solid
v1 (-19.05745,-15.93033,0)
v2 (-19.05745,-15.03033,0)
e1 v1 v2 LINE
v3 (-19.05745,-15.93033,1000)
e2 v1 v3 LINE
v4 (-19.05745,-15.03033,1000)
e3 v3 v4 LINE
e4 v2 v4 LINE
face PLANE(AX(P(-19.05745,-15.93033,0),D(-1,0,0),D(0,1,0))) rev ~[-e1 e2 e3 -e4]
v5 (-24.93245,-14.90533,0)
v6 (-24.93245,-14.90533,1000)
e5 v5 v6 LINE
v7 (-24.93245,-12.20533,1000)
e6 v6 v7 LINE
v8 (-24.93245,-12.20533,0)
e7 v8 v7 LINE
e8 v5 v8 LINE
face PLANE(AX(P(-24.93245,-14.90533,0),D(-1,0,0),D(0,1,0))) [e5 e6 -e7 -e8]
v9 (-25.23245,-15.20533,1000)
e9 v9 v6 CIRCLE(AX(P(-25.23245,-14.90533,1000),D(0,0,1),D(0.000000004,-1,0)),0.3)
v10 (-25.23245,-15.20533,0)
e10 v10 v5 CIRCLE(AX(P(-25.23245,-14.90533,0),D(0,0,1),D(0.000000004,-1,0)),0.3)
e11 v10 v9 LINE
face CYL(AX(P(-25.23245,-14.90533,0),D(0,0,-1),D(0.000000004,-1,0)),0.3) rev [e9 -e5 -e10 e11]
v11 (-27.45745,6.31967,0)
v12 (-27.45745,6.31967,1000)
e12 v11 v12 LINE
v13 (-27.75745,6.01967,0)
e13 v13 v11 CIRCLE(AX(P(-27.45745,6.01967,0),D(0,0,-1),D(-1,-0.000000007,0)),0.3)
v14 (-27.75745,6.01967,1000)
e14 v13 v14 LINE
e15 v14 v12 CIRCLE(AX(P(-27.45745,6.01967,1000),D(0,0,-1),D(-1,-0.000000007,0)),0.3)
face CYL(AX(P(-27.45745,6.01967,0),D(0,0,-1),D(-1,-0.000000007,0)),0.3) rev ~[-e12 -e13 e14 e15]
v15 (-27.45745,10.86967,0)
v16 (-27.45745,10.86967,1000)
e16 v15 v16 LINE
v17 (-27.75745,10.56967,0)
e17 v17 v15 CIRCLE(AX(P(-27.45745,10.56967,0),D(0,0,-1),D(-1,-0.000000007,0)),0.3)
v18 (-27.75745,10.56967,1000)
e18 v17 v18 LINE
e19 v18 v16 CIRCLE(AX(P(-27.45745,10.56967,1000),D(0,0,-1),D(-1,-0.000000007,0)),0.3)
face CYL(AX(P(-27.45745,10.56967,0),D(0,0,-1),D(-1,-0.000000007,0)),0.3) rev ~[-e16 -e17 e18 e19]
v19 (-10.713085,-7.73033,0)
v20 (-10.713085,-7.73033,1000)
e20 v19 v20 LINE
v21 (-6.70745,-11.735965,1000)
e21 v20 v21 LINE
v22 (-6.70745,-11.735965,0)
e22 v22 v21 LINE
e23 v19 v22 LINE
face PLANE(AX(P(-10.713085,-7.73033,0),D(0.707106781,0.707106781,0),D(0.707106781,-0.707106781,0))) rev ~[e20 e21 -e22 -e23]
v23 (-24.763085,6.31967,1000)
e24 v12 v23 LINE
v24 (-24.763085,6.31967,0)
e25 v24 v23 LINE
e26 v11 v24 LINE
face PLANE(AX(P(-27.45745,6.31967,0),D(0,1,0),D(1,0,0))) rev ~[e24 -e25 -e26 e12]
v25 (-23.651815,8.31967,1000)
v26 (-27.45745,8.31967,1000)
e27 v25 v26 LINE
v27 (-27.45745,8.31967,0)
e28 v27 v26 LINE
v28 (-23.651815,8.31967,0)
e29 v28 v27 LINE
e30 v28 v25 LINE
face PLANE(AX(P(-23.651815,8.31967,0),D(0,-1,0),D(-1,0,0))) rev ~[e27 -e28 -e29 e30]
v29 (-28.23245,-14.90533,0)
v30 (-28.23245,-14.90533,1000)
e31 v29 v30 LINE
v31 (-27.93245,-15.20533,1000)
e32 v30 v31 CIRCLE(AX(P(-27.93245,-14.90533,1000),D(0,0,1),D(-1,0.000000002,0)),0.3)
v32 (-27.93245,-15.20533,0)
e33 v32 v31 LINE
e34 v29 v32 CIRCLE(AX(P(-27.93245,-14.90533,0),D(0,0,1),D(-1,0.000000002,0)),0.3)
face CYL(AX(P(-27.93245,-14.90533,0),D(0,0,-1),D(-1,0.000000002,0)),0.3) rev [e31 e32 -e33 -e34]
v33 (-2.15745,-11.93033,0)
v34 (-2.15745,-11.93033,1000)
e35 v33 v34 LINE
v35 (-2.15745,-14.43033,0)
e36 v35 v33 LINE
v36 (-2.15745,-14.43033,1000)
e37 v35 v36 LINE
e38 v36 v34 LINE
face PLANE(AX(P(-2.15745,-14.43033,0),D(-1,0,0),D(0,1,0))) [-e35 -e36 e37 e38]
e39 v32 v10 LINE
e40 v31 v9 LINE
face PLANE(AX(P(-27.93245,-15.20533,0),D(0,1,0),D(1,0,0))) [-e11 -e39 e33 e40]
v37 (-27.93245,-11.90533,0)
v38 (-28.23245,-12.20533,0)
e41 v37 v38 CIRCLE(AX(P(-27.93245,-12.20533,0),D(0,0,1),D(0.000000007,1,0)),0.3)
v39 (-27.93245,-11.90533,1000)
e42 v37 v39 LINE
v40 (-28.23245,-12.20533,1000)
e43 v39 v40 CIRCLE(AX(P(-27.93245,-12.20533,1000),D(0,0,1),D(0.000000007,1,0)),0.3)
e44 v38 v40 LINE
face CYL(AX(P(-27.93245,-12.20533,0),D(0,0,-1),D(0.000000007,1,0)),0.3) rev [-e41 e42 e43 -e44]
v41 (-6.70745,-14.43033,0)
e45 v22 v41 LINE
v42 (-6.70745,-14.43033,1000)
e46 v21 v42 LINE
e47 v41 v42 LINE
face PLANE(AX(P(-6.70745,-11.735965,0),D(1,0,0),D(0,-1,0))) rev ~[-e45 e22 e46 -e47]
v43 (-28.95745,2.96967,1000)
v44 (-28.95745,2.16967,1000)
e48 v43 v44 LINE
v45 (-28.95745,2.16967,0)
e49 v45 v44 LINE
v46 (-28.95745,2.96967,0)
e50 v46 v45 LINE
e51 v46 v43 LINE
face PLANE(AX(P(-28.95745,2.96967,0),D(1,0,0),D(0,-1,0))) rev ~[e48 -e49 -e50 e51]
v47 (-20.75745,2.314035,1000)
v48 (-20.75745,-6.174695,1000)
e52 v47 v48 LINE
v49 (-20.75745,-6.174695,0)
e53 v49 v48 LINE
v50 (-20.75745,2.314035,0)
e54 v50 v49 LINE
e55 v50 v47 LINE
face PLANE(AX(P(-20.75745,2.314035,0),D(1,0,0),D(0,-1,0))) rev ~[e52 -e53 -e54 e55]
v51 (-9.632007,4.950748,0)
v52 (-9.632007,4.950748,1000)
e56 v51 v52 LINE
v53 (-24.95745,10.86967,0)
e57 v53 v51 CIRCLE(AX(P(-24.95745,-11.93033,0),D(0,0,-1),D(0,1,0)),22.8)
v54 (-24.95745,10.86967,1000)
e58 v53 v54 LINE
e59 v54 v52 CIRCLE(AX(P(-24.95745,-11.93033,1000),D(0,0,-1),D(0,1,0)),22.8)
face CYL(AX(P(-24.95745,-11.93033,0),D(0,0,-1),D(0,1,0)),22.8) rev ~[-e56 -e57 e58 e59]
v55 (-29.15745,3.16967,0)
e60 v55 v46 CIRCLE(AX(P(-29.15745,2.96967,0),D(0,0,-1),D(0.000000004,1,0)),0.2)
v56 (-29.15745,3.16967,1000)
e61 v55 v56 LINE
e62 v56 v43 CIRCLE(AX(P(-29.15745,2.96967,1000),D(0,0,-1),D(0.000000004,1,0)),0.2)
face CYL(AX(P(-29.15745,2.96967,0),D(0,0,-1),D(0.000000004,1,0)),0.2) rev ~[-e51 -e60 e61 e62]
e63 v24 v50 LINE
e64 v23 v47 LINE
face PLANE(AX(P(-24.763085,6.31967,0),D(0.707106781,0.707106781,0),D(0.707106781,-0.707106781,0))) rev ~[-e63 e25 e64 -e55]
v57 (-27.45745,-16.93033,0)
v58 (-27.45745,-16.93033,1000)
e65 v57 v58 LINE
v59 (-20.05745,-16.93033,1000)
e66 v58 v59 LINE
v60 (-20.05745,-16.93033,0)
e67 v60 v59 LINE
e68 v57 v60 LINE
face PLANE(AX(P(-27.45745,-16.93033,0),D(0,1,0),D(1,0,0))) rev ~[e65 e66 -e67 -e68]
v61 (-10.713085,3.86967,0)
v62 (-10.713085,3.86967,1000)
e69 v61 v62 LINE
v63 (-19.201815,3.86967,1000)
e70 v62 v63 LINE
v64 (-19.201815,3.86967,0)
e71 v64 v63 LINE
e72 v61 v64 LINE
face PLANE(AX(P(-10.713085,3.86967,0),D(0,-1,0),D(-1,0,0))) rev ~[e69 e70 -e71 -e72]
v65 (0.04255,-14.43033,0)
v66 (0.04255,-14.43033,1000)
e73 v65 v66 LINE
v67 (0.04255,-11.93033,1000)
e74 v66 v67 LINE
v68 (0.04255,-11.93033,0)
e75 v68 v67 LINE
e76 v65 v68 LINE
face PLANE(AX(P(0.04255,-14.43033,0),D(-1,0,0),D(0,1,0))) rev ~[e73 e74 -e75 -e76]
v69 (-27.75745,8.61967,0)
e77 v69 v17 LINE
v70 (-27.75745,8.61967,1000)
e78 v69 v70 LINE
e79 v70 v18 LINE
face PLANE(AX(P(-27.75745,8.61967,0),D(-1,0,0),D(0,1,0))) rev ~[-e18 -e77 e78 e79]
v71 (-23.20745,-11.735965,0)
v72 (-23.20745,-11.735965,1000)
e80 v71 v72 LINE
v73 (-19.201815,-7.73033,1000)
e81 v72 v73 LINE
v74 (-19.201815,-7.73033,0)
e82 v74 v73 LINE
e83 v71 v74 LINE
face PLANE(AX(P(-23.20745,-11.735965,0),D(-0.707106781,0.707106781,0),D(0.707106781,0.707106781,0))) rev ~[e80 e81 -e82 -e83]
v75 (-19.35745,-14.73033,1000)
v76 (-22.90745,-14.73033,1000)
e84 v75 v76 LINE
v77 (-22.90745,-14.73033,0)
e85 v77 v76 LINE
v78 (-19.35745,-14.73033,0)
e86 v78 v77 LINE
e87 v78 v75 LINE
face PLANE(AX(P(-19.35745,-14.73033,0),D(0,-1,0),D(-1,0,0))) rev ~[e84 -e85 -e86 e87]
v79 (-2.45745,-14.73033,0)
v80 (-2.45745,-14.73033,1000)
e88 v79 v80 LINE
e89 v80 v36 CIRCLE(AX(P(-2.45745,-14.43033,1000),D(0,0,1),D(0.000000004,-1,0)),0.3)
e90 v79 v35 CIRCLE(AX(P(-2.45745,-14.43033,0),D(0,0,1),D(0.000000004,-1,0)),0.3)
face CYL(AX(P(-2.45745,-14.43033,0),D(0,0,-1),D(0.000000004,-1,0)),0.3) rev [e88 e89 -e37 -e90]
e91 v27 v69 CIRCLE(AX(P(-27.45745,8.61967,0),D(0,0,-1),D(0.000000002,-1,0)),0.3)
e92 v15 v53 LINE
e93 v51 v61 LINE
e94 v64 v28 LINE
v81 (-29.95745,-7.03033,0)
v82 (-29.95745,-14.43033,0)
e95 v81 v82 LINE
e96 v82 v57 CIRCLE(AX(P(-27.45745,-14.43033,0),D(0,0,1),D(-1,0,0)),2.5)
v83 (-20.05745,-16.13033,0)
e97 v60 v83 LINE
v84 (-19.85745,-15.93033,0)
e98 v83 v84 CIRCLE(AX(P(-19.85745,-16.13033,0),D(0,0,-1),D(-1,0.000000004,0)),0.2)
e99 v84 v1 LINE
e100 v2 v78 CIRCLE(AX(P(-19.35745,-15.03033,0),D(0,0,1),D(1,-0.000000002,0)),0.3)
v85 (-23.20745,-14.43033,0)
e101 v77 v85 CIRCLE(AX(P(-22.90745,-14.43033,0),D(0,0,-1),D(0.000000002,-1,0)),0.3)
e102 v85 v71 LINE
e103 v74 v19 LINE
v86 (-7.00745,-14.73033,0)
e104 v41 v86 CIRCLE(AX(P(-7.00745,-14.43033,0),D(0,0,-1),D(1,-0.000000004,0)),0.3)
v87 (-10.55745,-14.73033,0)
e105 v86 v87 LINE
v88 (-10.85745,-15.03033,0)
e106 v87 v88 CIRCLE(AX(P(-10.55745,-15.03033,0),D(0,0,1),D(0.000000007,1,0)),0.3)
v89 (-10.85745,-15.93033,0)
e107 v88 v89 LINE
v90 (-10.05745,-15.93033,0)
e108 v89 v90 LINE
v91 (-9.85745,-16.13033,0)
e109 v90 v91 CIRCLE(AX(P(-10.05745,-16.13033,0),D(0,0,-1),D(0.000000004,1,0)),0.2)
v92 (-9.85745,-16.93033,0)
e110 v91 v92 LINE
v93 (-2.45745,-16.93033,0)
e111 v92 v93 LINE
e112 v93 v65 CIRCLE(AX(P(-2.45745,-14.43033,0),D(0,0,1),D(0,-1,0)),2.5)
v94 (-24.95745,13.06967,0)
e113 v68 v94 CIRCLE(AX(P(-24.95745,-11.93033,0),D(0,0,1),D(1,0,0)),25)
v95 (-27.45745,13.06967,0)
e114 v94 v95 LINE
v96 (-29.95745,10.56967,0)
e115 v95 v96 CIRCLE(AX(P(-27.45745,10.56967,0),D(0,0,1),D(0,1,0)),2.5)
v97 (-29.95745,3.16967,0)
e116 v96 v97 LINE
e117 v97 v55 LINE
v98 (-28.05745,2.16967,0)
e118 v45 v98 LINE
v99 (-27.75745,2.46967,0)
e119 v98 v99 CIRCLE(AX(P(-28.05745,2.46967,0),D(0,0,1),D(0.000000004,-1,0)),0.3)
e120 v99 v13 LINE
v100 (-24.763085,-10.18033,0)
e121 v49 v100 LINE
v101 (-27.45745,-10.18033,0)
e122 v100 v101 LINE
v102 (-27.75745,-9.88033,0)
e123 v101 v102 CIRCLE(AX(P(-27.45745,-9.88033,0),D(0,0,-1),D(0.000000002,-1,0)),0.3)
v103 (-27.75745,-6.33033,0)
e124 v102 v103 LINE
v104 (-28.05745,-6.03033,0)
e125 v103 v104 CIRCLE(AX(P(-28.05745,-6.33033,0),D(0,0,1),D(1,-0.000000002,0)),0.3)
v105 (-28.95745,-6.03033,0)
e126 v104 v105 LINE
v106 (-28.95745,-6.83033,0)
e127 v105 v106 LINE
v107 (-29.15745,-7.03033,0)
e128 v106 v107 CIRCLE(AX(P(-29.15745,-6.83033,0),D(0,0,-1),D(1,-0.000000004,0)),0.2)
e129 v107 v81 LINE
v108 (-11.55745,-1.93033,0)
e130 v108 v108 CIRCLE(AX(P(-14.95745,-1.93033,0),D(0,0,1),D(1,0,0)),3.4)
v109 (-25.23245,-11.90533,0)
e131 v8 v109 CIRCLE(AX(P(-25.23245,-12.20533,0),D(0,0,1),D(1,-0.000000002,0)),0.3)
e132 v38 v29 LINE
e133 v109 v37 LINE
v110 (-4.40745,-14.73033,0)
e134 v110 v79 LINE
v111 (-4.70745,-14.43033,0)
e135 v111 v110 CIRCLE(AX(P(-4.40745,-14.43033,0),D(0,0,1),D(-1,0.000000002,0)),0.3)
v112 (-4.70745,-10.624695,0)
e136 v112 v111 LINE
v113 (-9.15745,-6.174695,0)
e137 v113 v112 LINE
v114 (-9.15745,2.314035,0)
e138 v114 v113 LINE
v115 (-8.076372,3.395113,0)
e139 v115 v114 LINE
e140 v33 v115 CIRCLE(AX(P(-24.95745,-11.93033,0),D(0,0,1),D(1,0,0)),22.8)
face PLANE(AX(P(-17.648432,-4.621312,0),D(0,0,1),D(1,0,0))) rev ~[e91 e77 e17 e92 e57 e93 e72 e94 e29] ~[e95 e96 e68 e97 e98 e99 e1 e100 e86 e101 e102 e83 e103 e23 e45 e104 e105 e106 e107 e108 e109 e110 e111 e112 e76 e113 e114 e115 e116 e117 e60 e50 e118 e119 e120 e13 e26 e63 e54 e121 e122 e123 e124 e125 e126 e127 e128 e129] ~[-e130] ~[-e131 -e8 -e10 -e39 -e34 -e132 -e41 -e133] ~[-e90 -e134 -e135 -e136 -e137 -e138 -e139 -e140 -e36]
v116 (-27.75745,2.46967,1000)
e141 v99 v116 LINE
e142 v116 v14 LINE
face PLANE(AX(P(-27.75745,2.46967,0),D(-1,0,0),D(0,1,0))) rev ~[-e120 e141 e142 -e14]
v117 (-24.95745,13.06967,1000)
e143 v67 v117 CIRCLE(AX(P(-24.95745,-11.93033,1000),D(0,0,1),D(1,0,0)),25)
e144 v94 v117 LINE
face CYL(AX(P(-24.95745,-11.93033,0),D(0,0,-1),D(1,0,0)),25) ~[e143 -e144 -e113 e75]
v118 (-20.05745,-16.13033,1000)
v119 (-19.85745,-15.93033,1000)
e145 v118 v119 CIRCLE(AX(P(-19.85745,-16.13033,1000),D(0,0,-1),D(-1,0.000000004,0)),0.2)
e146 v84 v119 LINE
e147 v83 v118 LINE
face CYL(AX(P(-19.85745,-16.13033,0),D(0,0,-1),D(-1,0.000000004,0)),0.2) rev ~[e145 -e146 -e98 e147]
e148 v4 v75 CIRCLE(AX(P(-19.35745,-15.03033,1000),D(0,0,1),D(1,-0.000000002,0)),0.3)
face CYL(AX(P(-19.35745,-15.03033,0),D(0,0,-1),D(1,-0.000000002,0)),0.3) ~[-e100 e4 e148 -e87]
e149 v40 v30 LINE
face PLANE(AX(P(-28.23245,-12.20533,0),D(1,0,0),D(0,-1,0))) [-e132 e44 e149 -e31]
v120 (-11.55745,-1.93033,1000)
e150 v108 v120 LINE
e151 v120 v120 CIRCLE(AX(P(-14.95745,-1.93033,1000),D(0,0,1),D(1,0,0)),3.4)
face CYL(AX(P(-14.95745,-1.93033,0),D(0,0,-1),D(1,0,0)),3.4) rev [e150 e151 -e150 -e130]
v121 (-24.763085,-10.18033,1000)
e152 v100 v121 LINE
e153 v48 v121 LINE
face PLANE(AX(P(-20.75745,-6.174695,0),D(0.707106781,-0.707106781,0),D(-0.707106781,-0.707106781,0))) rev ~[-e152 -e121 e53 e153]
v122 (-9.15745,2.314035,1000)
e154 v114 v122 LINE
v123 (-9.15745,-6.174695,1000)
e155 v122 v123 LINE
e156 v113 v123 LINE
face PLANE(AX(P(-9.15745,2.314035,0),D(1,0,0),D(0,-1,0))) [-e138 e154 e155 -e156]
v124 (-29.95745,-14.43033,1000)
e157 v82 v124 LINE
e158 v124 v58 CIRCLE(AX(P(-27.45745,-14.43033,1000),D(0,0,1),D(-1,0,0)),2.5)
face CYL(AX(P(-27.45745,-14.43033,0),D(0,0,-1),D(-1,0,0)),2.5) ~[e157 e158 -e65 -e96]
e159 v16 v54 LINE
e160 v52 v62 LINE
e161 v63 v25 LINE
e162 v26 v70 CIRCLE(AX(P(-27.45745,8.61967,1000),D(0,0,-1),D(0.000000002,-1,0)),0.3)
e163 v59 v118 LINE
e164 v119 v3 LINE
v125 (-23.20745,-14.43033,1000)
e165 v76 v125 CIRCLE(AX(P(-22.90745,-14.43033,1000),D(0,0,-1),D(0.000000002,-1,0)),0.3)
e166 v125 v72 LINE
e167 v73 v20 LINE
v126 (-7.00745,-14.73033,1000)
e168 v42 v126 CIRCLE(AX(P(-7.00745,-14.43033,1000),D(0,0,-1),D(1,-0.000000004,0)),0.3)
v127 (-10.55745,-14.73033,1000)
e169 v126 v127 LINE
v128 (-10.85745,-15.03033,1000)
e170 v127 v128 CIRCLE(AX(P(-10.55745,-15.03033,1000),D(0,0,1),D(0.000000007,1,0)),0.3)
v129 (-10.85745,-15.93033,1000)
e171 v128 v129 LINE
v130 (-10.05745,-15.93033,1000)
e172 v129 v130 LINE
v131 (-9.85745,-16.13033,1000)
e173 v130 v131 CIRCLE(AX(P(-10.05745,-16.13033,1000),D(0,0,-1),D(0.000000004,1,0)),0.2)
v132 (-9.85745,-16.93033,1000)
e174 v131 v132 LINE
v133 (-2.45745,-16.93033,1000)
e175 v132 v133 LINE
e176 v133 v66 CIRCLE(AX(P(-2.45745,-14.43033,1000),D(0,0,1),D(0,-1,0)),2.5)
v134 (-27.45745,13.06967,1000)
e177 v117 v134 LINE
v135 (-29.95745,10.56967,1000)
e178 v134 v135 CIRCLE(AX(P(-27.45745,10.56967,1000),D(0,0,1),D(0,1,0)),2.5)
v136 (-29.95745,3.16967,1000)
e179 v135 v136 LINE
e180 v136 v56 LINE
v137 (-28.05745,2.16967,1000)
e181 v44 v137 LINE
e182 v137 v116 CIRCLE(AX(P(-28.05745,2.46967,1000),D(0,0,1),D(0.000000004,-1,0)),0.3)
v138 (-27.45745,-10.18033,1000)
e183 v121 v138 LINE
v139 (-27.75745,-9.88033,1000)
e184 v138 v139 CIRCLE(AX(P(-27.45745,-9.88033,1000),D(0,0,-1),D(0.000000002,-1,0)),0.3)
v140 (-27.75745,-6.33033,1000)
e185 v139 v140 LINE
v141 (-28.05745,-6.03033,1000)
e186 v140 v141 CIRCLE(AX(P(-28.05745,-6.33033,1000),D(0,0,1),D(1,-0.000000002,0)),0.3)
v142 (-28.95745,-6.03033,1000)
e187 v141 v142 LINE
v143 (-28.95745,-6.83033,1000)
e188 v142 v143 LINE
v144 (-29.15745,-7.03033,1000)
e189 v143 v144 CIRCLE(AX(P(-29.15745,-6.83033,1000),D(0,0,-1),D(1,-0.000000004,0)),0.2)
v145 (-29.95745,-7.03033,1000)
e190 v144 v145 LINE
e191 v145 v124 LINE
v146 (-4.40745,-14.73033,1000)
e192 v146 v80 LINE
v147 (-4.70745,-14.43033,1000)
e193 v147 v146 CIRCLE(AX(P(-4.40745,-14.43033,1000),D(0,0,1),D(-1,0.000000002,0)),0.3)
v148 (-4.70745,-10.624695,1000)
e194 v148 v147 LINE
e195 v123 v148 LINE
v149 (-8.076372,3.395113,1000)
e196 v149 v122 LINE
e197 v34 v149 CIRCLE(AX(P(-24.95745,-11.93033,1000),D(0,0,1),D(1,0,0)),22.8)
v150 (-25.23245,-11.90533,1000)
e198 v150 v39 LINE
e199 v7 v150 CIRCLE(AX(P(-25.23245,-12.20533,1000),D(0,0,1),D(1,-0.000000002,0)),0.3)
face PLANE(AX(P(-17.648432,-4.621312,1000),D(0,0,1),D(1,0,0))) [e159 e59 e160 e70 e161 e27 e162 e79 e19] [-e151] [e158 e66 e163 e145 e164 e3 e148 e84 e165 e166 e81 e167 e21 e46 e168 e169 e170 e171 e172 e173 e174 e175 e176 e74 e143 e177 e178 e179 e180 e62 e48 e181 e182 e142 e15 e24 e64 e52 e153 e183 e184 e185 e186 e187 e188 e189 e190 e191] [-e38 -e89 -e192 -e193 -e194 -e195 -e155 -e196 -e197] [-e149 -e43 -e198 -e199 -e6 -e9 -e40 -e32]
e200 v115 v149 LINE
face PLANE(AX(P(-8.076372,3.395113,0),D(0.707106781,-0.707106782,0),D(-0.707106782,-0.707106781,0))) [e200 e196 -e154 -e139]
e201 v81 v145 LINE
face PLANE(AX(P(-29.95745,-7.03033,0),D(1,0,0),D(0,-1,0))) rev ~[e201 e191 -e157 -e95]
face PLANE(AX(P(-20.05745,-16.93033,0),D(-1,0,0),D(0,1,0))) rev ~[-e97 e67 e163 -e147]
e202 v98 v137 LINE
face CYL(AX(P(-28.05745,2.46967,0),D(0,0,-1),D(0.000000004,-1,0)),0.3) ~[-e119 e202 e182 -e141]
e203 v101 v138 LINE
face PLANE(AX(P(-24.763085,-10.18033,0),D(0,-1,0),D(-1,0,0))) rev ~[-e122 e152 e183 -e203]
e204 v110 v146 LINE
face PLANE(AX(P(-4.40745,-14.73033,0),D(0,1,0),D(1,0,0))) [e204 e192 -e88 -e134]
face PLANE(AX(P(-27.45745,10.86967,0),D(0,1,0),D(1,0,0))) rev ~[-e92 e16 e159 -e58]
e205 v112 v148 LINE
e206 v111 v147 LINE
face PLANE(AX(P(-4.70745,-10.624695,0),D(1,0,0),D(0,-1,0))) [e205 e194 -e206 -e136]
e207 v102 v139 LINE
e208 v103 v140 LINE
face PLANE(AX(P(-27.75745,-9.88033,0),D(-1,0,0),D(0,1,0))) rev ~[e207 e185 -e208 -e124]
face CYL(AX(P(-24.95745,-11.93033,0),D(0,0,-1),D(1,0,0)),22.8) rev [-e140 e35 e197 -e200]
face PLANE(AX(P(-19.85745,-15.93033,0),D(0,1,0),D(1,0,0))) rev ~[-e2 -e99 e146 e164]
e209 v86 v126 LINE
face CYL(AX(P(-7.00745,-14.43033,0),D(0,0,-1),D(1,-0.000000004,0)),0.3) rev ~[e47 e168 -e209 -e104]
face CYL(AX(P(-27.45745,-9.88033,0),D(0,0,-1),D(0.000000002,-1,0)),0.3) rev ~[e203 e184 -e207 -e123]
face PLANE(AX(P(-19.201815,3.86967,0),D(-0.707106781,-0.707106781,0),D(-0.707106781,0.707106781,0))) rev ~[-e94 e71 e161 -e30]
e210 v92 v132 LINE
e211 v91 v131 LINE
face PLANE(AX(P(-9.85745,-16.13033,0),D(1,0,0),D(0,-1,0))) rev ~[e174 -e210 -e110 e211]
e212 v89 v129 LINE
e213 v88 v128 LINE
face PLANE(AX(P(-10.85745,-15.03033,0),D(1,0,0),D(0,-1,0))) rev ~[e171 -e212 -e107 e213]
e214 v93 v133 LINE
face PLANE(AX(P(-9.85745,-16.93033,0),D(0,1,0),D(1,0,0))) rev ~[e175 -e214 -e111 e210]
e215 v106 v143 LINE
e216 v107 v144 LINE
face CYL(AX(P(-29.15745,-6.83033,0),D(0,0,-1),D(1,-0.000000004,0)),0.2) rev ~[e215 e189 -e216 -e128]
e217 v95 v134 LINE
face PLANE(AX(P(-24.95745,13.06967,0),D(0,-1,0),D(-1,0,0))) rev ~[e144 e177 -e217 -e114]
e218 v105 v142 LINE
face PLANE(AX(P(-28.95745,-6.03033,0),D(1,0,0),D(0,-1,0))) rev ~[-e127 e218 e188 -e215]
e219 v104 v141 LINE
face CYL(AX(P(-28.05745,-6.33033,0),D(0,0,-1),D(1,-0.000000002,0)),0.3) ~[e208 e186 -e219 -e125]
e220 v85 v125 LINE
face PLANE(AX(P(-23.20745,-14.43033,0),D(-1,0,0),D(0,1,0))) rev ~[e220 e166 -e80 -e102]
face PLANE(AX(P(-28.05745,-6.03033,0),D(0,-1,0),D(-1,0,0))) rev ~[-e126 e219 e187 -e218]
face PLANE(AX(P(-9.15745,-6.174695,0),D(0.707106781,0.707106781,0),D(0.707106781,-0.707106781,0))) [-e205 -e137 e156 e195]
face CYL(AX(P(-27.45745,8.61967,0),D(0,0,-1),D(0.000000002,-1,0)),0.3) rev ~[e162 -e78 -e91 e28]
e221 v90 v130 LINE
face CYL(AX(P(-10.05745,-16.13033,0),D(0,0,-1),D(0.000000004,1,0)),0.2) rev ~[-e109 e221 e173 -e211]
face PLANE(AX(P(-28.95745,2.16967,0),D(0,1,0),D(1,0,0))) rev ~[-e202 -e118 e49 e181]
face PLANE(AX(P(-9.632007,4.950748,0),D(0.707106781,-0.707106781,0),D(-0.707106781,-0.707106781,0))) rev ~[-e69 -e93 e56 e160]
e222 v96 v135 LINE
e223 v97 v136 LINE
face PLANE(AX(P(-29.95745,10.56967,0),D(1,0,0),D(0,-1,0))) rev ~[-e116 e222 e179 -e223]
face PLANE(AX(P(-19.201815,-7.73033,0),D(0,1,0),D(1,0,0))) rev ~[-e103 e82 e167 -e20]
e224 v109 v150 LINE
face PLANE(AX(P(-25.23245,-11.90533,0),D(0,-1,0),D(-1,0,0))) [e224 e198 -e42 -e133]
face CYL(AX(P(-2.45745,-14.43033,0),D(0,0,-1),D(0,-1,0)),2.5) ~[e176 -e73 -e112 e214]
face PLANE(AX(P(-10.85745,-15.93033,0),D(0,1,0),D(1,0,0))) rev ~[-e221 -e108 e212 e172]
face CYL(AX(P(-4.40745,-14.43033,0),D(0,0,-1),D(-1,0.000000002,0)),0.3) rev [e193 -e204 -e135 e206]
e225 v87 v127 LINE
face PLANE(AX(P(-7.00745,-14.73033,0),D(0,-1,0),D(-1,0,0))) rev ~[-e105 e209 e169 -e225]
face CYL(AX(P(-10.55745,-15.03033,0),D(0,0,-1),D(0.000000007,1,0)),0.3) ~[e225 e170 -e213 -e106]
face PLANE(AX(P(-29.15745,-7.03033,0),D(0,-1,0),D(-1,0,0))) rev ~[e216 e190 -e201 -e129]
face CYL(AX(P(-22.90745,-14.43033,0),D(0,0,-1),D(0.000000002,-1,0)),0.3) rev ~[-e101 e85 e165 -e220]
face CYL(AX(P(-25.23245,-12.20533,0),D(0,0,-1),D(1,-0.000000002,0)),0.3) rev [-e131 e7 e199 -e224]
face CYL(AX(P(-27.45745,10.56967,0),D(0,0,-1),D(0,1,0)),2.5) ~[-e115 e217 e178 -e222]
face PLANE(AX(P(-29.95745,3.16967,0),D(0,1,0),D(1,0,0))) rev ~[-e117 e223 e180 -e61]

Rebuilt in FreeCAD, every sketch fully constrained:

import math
import FreeCAD as App
import Part
import Sketcher
from FreeCAD import Vector

doc = App.newDocument("Part")
body = doc.addObject("PartDesign::Body", "Body")

# Sketch on XY plane
sketch1 = doc.addObject("Sketcher::SketchObject", "Sketch")
body.addObject(sketch1)
sketch1.AttachmentSupport = (doc.XY_Plane, [""])
sketch1.MapMode = "FlatFace"
sketch1.addGeometry(Part.LineSegment(Vector(-29.95745, -7.03033, 0), Vector(-29.95745, -14.43033, 0)), False)
sketch1.addGeometry(Part.ArcOfCircle(Part.Circle(Vector(-27.45745, -14.43033, 0), Vector(0, 0, 1), 2.5), math.radians(180), math.radians(270)), False)
sketch1.addGeometry(Part.LineSegment(Vector(-27.45745, -16.93033, 0), Vector(-20.05745, -16.93033, 0)), False)
sketch1.addGeometry(Part.LineSegment(Vector(-20.05745, -16.93033, 0), Vector(-20.05745, -16.13033, 0)), False)
sketch1.addGeometry(Part.ArcOfCircle(Part.Circle(Vector(-19.85745, -16.13033, 0), Vector(0, 0, 1), 0.2), math.radians(90), math.radians(180)), False)
sketch1.addGeometry(Part.LineSegment(Vector(-19.85745, -15.93033, 0), Vector(-19.05745, -15.93033, 0)), False)
sketch1.addGeometry(Part.LineSegment(Vector(-19.05745, -15.93033, 0), Vector(-19.05745, -15.03033, 0)), False)
sketch1.addGeometry(Part.ArcOfCircle(Part.Circle(Vector(-19.35745, -15.03033, 0), Vector(0, 0, 1), 0.3), math.radians(0), math.radians(90)), False)
sketch1.addGeometry(Part.LineSegment(Vector(-19.35745, -14.73033, 0), Vector(-22.90745, -14.73033, 0)), False)
sketch1.addGeometry(Part.ArcOfCircle(Part.Circle(Vector(-22.90745, -14.43033, 0), Vector(0, 0, 1), 0.3), math.radians(180), math.radians(270)), False)
sketch1.addGeometry(Part.LineSegment(Vector(-23.20745, -14.43033, 0), Vector(-23.20745, -11.735965, 0)), False)
sketch1.addGeometry(Part.LineSegment(Vector(-23.20745, -11.735965, 0), Vector(-19.201815, -7.73033, 0)), False)
sketch1.addGeometry(Part.LineSegment(Vector(-19.201815, -7.73033, 0), Vector(-10.713085, -7.73033, 0)), False)
sketch1.addGeometry(Part.LineSegment(Vector(-10.713085, -7.73033, 0), Vector(-6.70745, -11.735965, 0)), False)
sketch1.addGeometry(Part.LineSegment(Vector(-6.70745, -11.735965, 0), Vector(-6.70745, -14.43033, 0)), False)
sketch1.addGeometry(Part.ArcOfCircle(Part.Circle(Vector(-7.00745, -14.43033, 0), Vector(0, 0, 1), 0.3), math.radians(-90), math.radians(0)), False)
sketch1.addGeometry(Part.LineSegment(Vector(-7.00745, -14.73033, 0), Vector(-10.55745, -14.73033, 0)), False)
sketch1.addGeometry(Part.ArcOfCircle(Part.Circle(Vector(-10.55745, -15.03033, 0), Vector(0, 0, 1), 0.3), math.radians(90), math.radians(180)), False)
sketch1.addGeometry(Part.LineSegment(Vector(-10.85745, -15.03033, 0), Vector(-10.85745, -15.93033, 0)), False)
sketch1.addGeometry(Part.LineSegment(Vector(-10.85745, -15.93033, 0), Vector(-10.05745, -15.93033, 0)), False)
sketch1.addGeometry(Part.ArcOfCircle(Part.Circle(Vector(-10.05745, -16.13033, 0), Vector(0, 0, 1), 0.2), math.radians(0), math.radians(90)), False)
sketch1.addGeometry(Part.LineSegment(Vector(-9.85745, -16.13033, 0), Vector(-9.85745, -16.93033, 0)), False)
sketch1.addGeometry(Part.LineSegment(Vector(-9.85745, -16.93033, 0), Vector(-2.45745, -16.93033, 0)), False)
sketch1.addGeometry(Part.ArcOfCircle(Part.Circle(Vector(-2.45745, -14.43033, 0), Vector(0, 0, 1), 2.5), math.radians(-90), math.radians(0)), False)
sketch1.addGeometry(Part.LineSegment(Vector(0.04255, -14.43033, 0), Vector(0.04255, -11.93033, 0)), False)
sketch1.addGeometry(Part.ArcOfCircle(Part.Circle(Vector(-24.95745, -11.93033, 0), Vector(0, 0, 1), 25), math.radians(0), math.radians(90)), False)
sketch1.addGeometry(Part.LineSegment(Vector(-24.95745, 13.06967, 0), Vector(-27.45745, 13.06967, 0)), False)
sketch1.addGeometry(Part.ArcOfCircle(Part.Circle(Vector(-27.45745, 10.56967, 0), Vector(0, 0, 1), 2.5), math.radians(90), math.radians(180)), False)
sketch1.addGeometry(Part.LineSegment(Vector(-29.95745, 10.56967, 0), Vector(-29.95745, 3.16967, 0)), False)
sketch1.addGeometry(Part.LineSegment(Vector(-29.95745, 3.16967, 0), Vector(-29.15745, 3.16967, 0)), False)
sketch1.addGeometry(Part.ArcOfCircle(Part.Circle(Vector(-29.15745, 2.96967, 0), Vector(0, 0, 1), 0.2), math.radians(0), math.radians(90)), False)
sketch1.addGeometry(Part.LineSegment(Vector(-28.95745, 2.96967, 0), Vector(-28.95745, 2.16967, 0)), False)
sketch1.addGeometry(Part.LineSegment(Vector(-28.95745, 2.16967, 0), Vector(-28.05745, 2.16967, 0)), False)
sketch1.addGeometry(Part.ArcOfCircle(Part.Circle(Vector(-28.05745, 2.46967, 0), Vector(0, 0, 1), 0.3), math.radians(-90), math.radians(0)), False)
sketch1.addGeometry(Part.LineSegment(Vector(-27.75745, 2.46967, 0), Vector(-27.75745, 6.01967, 0)), False)
sketch1.addGeometry(Part.ArcOfCircle(Part.Circle(Vector(-27.45745, 6.01967, 0), Vector(0, 0, 1), 0.3), math.radians(90), math.radians(180)), False)
sketch1.addGeometry(Part.LineSegment(Vector(-27.45745, 6.31967, 0), Vector(-24.763085, 6.31967, 0)), False)
sketch1.addGeometry(Part.LineSegment(Vector(-24.763085, 6.31967, 0), Vector(-20.75745, 2.314035, 0)), False)
sketch1.addGeometry(Part.LineSegment(Vector(-20.75745, 2.314035, 0), Vector(-20.75745, -6.174695, 0)), False)
sketch1.addGeometry(Part.LineSegment(Vector(-20.75745, -6.174695, 0), Vector(-24.763085, -10.18033, 0)), False)
sketch1.addGeometry(Part.LineSegment(Vector(-24.763085, -10.18033, 0), Vector(-27.45745, -10.18033, 0)), False)
sketch1.addGeometry(Part.ArcOfCircle(Part.Circle(Vector(-27.45745, -9.88033, 0), Vector(0, 0, 1), 0.3), math.radians(180), math.radians(270)), False)
sketch1.addGeometry(Part.LineSegment(Vector(-27.75745, -9.88033, 0), Vector(-27.75745, -6.33033, 0)), False)
sketch1.addGeometry(Part.ArcOfCircle(Part.Circle(Vector(-28.05745, -6.33033, 0), Vector(0, 0, 1), 0.3), math.radians(0), math.radians(90)), False)
sketch1.addGeometry(Part.LineSegment(Vector(-28.05745, -6.03033, 0), Vector(-28.95745, -6.03033, 0)), False)
sketch1.addGeometry(Part.LineSegment(Vector(-28.95745, -6.03033, 0), Vector(-28.95745, -6.83033, 0)), False)
sketch1.addGeometry(Part.ArcOfCircle(Part.Circle(Vector(-29.15745, -6.83033, 0), Vector(0, 0, 1), 0.2), math.radians(-90), math.radians(0)), False)
sketch1.addGeometry(Part.LineSegment(Vector(-29.15745, -7.03033, 0), Vector(-29.95745, -7.03033, 0)), False)
sketch1.addGeometry(Part.LineSegment(Vector(-25.23245, -15.20533, 0), Vector(-27.93245, -15.20533, 0)), False)
sketch1.addGeometry(Part.ArcOfCircle(Part.Circle(Vector(-27.93245, -14.90533, 0), Vector(0, 0, 1), 0.3), math.radians(180), math.radians(270)), False)
sketch1.addGeometry(Part.LineSegment(Vector(-28.23245, -14.90533, 0), Vector(-28.23245, -12.20533, 0)), False)
sketch1.addGeometry(Part.ArcOfCircle(Part.Circle(Vector(-27.93245, -12.20533, 0), Vector(0, 0, 1), 0.3), math.radians(90), math.radians(180)), False)
sketch1.addGeometry(Part.LineSegment(Vector(-27.93245, -11.90533, 0), Vector(-25.23245, -11.90533, 0)), False)
sketch1.addGeometry(Part.ArcOfCircle(Part.Circle(Vector(-25.23245, -12.20533, 0), Vector(0, 0, 1), 0.3), math.radians(0), math.radians(90)), False)
sketch1.addGeometry(Part.LineSegment(Vector(-24.93245, -12.20533, 0), Vector(-24.93245, -14.90533, 0)), False)
sketch1.addGeometry(Part.ArcOfCircle(Part.Circle(Vector(-25.23245, -14.90533, 0), Vector(0, 0, 1), 0.3), math.radians(-90), math.radians(0)), False)
sketch1.addGeometry(Part.LineSegment(Vector(-9.15745, 2.314035, 0), Vector(-8.076372, 3.395113, 0)), False)
sketch1.addGeometry(Part.ArcOfCircle(Part.Circle(Vector(-24.95745, -11.93033, 0), Vector(0, 0, 1), 22.8), math.radians(0), math.radians(42.234656)), False)
sketch1.addGeometry(Part.LineSegment(Vector(-2.15745, -11.93033, 0), Vector(-2.15745, -14.43033, 0)), False)
sketch1.addGeometry(Part.ArcOfCircle(Part.Circle(Vector(-2.45745, -14.43033, 0), Vector(0, 0, 1), 0.3), math.radians(-90), math.radians(0)), False)
sketch1.addGeometry(Part.LineSegment(Vector(-2.45745, -14.73033, 0), Vector(-4.40745, -14.73033, 0)), False)
sketch1.addGeometry(Part.ArcOfCircle(Part.Circle(Vector(-4.40745, -14.43033, 0), Vector(0, 0, 1), 0.3), math.radians(180), math.radians(270)), False)
sketch1.addGeometry(Part.LineSegment(Vector(-4.70745, -14.43033, 0), Vector(-4.70745, -10.624695, 0)), False)
sketch1.addGeometry(Part.LineSegment(Vector(-4.70745, -10.624695, 0), Vector(-9.15745, -6.174695, 0)), False)
sketch1.addGeometry(Part.LineSegment(Vector(-9.15745, -6.174695, 0), Vector(-9.15745, 2.314035, 0)), False)
sketch1.addGeometry(Part.ArcOfCircle(Part.Circle(Vector(-24.95745, -11.93033, 0), Vector(0, 0, 1), 22.8), math.radians(47.765344), math.radians(90)), False)
sketch1.addGeometry(Part.LineSegment(Vector(-9.632007, 4.950748, 0), Vector(-10.713085, 3.86967, 0)), False)
sketch1.addGeometry(Part.LineSegment(Vector(-10.713085, 3.86967, 0), Vector(-19.201815, 3.86967, 0)), False)
sketch1.addGeometry(Part.LineSegment(Vector(-19.201815, 3.86967, 0), Vector(-23.651815, 8.31967, 0)), False)
sketch1.addGeometry(Part.LineSegment(Vector(-23.651815, 8.31967, 0), Vector(-27.45745, 8.31967, 0)), False)
sketch1.addGeometry(Part.ArcOfCircle(Part.Circle(Vector(-27.45745, 8.61967, 0), Vector(0, 0, 1), 0.3), math.radians(180), math.radians(270)), False)
sketch1.addGeometry(Part.LineSegment(Vector(-27.75745, 8.61967, 0), Vector(-27.75745, 10.56967, 0)), False)
sketch1.addGeometry(Part.ArcOfCircle(Part.Circle(Vector(-27.45745, 10.56967, 0), Vector(0, 0, 1), 0.3), math.radians(90), math.radians(180)), False)
sketch1.addGeometry(Part.LineSegment(Vector(-27.45745, 10.86967, 0), Vector(-24.95745, 10.86967, 0)), False)
sketch1.addGeometry(Part.Circle(Vector(-14.95745, -1.93033, 0), Vector(0, 0, 1), 3.4), False)
sketch1.addConstraint(Sketcher.Constraint("Tangent", 0, 2, 1, 1))
sketch1.addConstraint(Sketcher.Constraint("Tangent", 1, 2, 2, 1))
sketch1.addConstraint(Sketcher.Constraint("Coincident", 2, 2, 3, 1))
sketch1.addConstraint(Sketcher.Constraint("Tangent", 3, 2, 4, 2))
sketch1.addConstraint(Sketcher.Constraint("Tangent", 4, 1, 5, 1))
sketch1.addConstraint(Sketcher.Constraint("Coincident", 5, 2, 6, 1))
sketch1.addConstraint(Sketcher.Constraint("Tangent", 6, 2, 7, 1))
sketch1.addConstraint(Sketcher.Constraint("Tangent", 7, 2, 8, 1))
sketch1.addConstraint(Sketcher.Constraint("Tangent", 8, 2, 9, 2))
sketch1.addConstraint(Sketcher.Constraint("Tangent", 9, 1, 10, 1))
sketch1.addConstraint(Sketcher.Constraint("Coincident", 10, 2, 11, 1))
sketch1.addConstraint(Sketcher.Constraint("Coincident", 11, 2, 12, 1))
sketch1.addConstraint(Sketcher.Constraint("Coincident", 12, 2, 13, 1))
sketch1.addConstraint(Sketcher.Constraint("Coincident", 13, 2, 14, 1))
sketch1.addConstraint(Sketcher.Constraint("Tangent", 14, 2, 15, 2))
sketch1.addConstraint(Sketcher.Constraint("Tangent", 15, 1, 16, 1))
sketch1.addConstraint(Sketcher.Constraint("Tangent", 16, 2, 17, 1))
sketch1.addConstraint(Sketcher.Constraint("Tangent", 17, 2, 18, 1))
sketch1.addConstraint(Sketcher.Constraint("Coincident", 18, 2, 19, 1))
sketch1.addConstraint(Sketcher.Constraint("Tangent", 19, 2, 20, 2))
sketch1.addConstraint(Sketcher.Constraint("Tangent", 20, 1, 21, 1))
sketch1.addConstraint(Sketcher.Constraint("Coincident", 21, 2, 22, 1))
sketch1.addConstraint(Sketcher.Constraint("Tangent", 22, 2, 23, 1))
sketch1.addConstraint(Sketcher.Constraint("Tangent", 23, 2, 24, 1))
sketch1.addConstraint(Sketcher.Constraint("Tangent", 24, 2, 25, 1))
sketch1.addConstraint(Sketcher.Constraint("Tangent", 25, 2, 26, 1))
sketch1.addConstraint(Sketcher.Constraint("Tangent", 26, 2, 27, 1))
sketch1.addConstraint(Sketcher.Constraint("Tangent", 27, 2, 28, 1))
sketch1.addConstraint(Sketcher.Constraint("Coincident", 28, 2, 29, 1))
sketch1.addConstraint(Sketcher.Constraint("Tangent", 29, 2, 30, 2))
sketch1.addConstraint(Sketcher.Constraint("Tangent", 30, 1, 31, 1))
sketch1.addConstraint(Sketcher.Constraint("Coincident", 31, 2, 32, 1))
sketch1.addConstraint(Sketcher.Constraint("Tangent", 32, 2, 33, 1))
sketch1.addConstraint(Sketcher.Constraint("Tangent", 33, 2, 34, 1))
sketch1.addConstraint(Sketcher.Constraint("Tangent", 34, 2, 35, 2))
sketch1.addConstraint(Sketcher.Constraint("Tangent", 35, 1, 36, 1))
sketch1.addConstraint(Sketcher.Constraint("Coincident", 36, 2, 37, 1))
sketch1.addConstraint(Sketcher.Constraint("Coincident", 37, 2, 38, 1))
sketch1.addConstraint(Sketcher.Constraint("Coincident", 38, 2, 39, 1))
sketch1.addConstraint(Sketcher.Constraint("Coincident", 39, 2, 40, 1))
sketch1.addConstraint(Sketcher.Constraint("Tangent", 40, 2, 41, 2))
sketch1.addConstraint(Sketcher.Constraint("Tangent", 41, 1, 42, 1))
sketch1.addConstraint(Sketcher.Constraint("Tangent", 42, 2, 43, 1))
sketch1.addConstraint(Sketcher.Constraint("Tangent", 43, 2, 44, 1))
sketch1.addConstraint(Sketcher.Constraint("Coincident", 44, 2, 45, 1))
sketch1.addConstraint(Sketcher.Constraint("Tangent", 45, 2, 46, 2))
sketch1.addConstraint(Sketcher.Constraint("Tangent", 46, 1, 47, 1))
sketch1.addConstraint(Sketcher.Constraint("Coincident", 47, 2, 0, 1))
sketch1.addConstraint(Sketcher.Constraint("Tangent", 48, 2, 49, 2))
sketch1.addConstraint(Sketcher.Constraint("Tangent", 49, 1, 50, 1))
sketch1.addConstraint(Sketcher.Constraint("Tangent", 50, 2, 51, 2))
sketch1.addConstraint(Sketcher.Constraint("Tangent", 51, 1, 52, 1))
sketch1.addConstraint(Sketcher.Constraint("Tangent", 52, 2, 53, 2))
sketch1.addConstraint(Sketcher.Constraint("Tangent", 53, 1, 54, 1))
sketch1.addConstraint(Sketcher.Constraint("Tangent", 54, 2, 55, 2))
sketch1.addConstraint(Sketcher.Constraint("Tangent", 55, 1, 48, 1))
sketch1.addConstraint(Sketcher.Constraint("Coincident", 56, 2, 57, 2))
sketch1.addConstraint(Sketcher.Constraint("Tangent", 57, 1, 58, 1))
sketch1.addConstraint(Sketcher.Constraint("Tangent", 58, 2, 59, 2))
sketch1.addConstraint(Sketcher.Constraint("Tangent", 59, 1, 60, 1))
sketch1.addConstraint(Sketcher.Constraint("Tangent", 60, 2, 61, 2))
sketch1.addConstraint(Sketcher.Constraint("Tangent", 61, 1, 62, 1))
sketch1.addConstraint(Sketcher.Constraint("Coincident", 62, 2, 63, 1))
sketch1.addConstraint(Sketcher.Constraint("Coincident", 63, 2, 64, 1))
sketch1.addConstraint(Sketcher.Constraint("Coincident", 64, 2, 56, 1))
sketch1.addConstraint(Sketcher.Constraint("Coincident", 65, 1, 66, 1))
sketch1.addConstraint(Sketcher.Constraint("Coincident", 66, 2, 67, 1))
sketch1.addConstraint(Sketcher.Constraint("Coincident", 67, 2, 68, 1))
sketch1.addConstraint(Sketcher.Constraint("Coincident", 68, 2, 69, 1))
sketch1.addConstraint(Sketcher.Constraint("Tangent", 69, 2, 70, 2))
sketch1.addConstraint(Sketcher.Constraint("Tangent", 70, 1, 71, 1))
sketch1.addConstraint(Sketcher.Constraint("Tangent", 71, 2, 72, 2))
sketch1.addConstraint(Sketcher.Constraint("Tangent", 72, 1, 73, 1))
sketch1.addConstraint(Sketcher.Constraint("Tangent", 73, 2, 65, 2))
sketch1.addConstraint(Sketcher.Constraint("Vertical", 0))
sketch1.addConstraint(Sketcher.Constraint("Horizontal", 2))
sketch1.addConstraint(Sketcher.Constraint("Vertical", 3))
sketch1.addConstraint(Sketcher.Constraint("Horizontal", 5))
sketch1.addConstraint(Sketcher.Constraint("Vertical", 6))
sketch1.addConstraint(Sketcher.Constraint("Horizontal", 8))
sketch1.addConstraint(Sketcher.Constraint("Vertical", 10))
sketch1.addConstraint(Sketcher.Constraint("Horizontal", 12))
sketch1.addConstraint(Sketcher.Constraint("Vertical", 14))
sketch1.addConstraint(Sketcher.Constraint("Horizontal", 16))
sketch1.addConstraint(Sketcher.Constraint("Vertical", 18))
sketch1.addConstraint(Sketcher.Constraint("Horizontal", 19))
sketch1.addConstraint(Sketcher.Constraint("Vertical", 21))
sketch1.addConstraint(Sketcher.Constraint("Horizontal", 22))
sketch1.addConstraint(Sketcher.Constraint("Vertical", 24))
sketch1.addConstraint(Sketcher.Constraint("Horizontal", 26))
sketch1.addConstraint(Sketcher.Constraint("Vertical", 28))
sketch1.addConstraint(Sketcher.Constraint("Horizontal", 29))
sketch1.addConstraint(Sketcher.Constraint("Vertical", 31))
sketch1.addConstraint(Sketcher.Constraint("Horizontal", 32))
sketch1.addConstraint(Sketcher.Constraint("Vertical", 34))
sketch1.addConstraint(Sketcher.Constraint("Horizontal", 36))
sketch1.addConstraint(Sketcher.Constraint("Vertical", 38))
sketch1.addConstraint(Sketcher.Constraint("Horizontal", 40))
sketch1.addConstraint(Sketcher.Constraint("Vertical", 42))
sketch1.addConstraint(Sketcher.Constraint("Horizontal", 44))
sketch1.addConstraint(Sketcher.Constraint("Vertical", 45))
sketch1.addConstraint(Sketcher.Constraint("Horizontal", 47))
sketch1.addConstraint(Sketcher.Constraint("Horizontal", 48))
sketch1.addConstraint(Sketcher.Constraint("Vertical", 50))
sketch1.addConstraint(Sketcher.Constraint("Horizontal", 52))
sketch1.addConstraint(Sketcher.Constraint("Vertical", 54))
sketch1.addConstraint(Sketcher.Constraint("Vertical", 58))
sketch1.addConstraint(Sketcher.Constraint("Horizontal", 60))
sketch1.addConstraint(Sketcher.Constraint("Vertical", 62))
sketch1.addConstraint(Sketcher.Constraint("Vertical", 64))
sketch1.addConstraint(Sketcher.Constraint("Horizontal", 67))
sketch1.addConstraint(Sketcher.Constraint("Horizontal", 69))
sketch1.addConstraint(Sketcher.Constraint("Vertical", 71))
sketch1.addConstraint(Sketcher.Constraint("Horizontal", 73))
sketch1.addConstraint(Sketcher.Constraint("Coincident", 57, 3, 25, 3))
sketch1.addConstraint(Sketcher.Constraint("Coincident", 59, 3, 23, 3))
sketch1.addConstraint(Sketcher.Constraint("Coincident", 65, 3, 25, 3))
sketch1.addConstraint(Sketcher.Constraint("Coincident", 72, 3, 27, 3))
sketch1.addConstraint(Sketcher.Constraint("Equal", 7, 9))
sketch1.addConstraint(Sketcher.Constraint("Equal", 9, 15))
sketch1.addConstraint(Sketcher.Constraint("Equal", 15, 17))
sketch1.addConstraint(Sketcher.Constraint("Equal", 4, 20))
sketch1.addConstraint(Sketcher.Constraint("Equal", 1, 23))
sketch1.addConstraint(Sketcher.Constraint("Equal", 23, 27))
sketch1.addConstraint(Sketcher.Constraint("Equal", 20, 30))
sketch1.addConstraint(Sketcher.Constraint("Equal", 17, 33))
sketch1.addConstraint(Sketcher.Constraint("Equal", 33, 35))
sketch1.addConstraint(Sketcher.Constraint("Equal", 35, 41))
sketch1.addConstraint(Sketcher.Constraint("Equal", 41, 43))
sketch1.addConstraint(Sketcher.Constraint("Equal", 30, 46))
sketch1.addConstraint(Sketcher.Constraint("Equal", 43, 49))
sketch1.addConstraint(Sketcher.Constraint("Equal", 49, 51))
sketch1.addConstraint(Sketcher.Constraint("Equal", 51, 53))
sketch1.addConstraint(Sketcher.Constraint("Equal", 53, 55))
sketch1.addConstraint(Sketcher.Constraint("Equal", 55, 59))
sketch1.addConstraint(Sketcher.Constraint("Equal", 59, 61))
sketch1.addConstraint(Sketcher.Constraint("Equal", 57, 65))
sketch1.addConstraint(Sketcher.Constraint("Equal", 61, 70))
sketch1.addConstraint(Sketcher.Constraint("Perpendicular", 11, 13))
sketch1.addConstraint(Sketcher.Constraint("Parallel", 13, 37))
sketch1.addConstraint(Sketcher.Constraint("Perpendicular", 37, 39))
sketch1.addConstraint(Sketcher.Constraint("Parallel", 39, 56))
sketch1.addConstraint(Sketcher.Constraint("Perpendicular", 56, 63))
sketch1.addConstraint(Sketcher.Constraint("Perpendicular", 63, 66))
sketch1.addConstraint(Sketcher.Constraint("Perpendicular", 66, 68))
sketch1.addConstraint(Sketcher.Constraint("Horizontal", 1, 3, 9, 3))
sketch1.addConstraint(Sketcher.Constraint("Horizontal", 9, 3, 15, 3))
sketch1.addConstraint(Sketcher.Constraint("Horizontal", 4, 3, 20, 3))
sketch1.addConstraint(Sketcher.Constraint("Horizontal", 15, 3, 23, 3))
sketch1.addConstraint(Sketcher.Constraint("Horizontal", 10, 2, 13, 2))
sketch1.addConstraint(Sketcher.Constraint("Horizontal", 38, 2, 63, 2))
sketch1.addConstraint(Sketcher.Constraint("Horizontal", 37, 2, 64, 2))
sketch1.addConstraint(Sketcher.Constraint("Vertical", 1, 3, 27, 3))
sketch1.addConstraint(Sketcher.Constraint("Vertical", 27, 3, 35, 3))
sketch1.addConstraint(Sketcher.Constraint("Vertical", 35, 3, 41, 3))
sketch1.addConstraint(Sketcher.Constraint("Vertical", 30, 3, 46, 3))
sketch1.addConstraint(Sketcher.Constraint("Vertical", 36, 2, 39, 2))
sketch1.addConstraint(Sketcher.Constraint("Vertical", 12, 2, 66, 2))
sketch1.addConstraint(Sketcher.Constraint("Vertical", 11, 2, 67, 2))
sketch1.addConstraint(Sketcher.Constraint("Equal", 8, 16))
sketch1.addConstraint(Sketcher.Constraint("Equal", 5, 19))
sketch1.addConstraint(Sketcher.Constraint("Equal", 2, 22))
sketch1.addConstraint(Sketcher.Constraint("Equal", 19, 29))
sketch1.addConstraint(Sketcher.Constraint("Equal", 22, 0))
sketch1.addConstraint(Sketcher.Constraint("Equal", 47, 3))
sketch1.addConstraint(Sketcher.Constraint("Equal", 40, 10))
sketch1.addConstraint(Sketcher.Constraint("Equal", 73, 24))
sketch1.addConstraint(Sketcher.Constraint("Equal", 0, 28))
sketch1.addConstraint(Sketcher.Constraint("Equal", 21, 31))
sketch1.addConstraint(Sketcher.Constraint("Equal", 16, 34))
sketch1.addConstraint(Sketcher.Constraint("Equal", 67, 38))
sketch1.addConstraint(Sketcher.Constraint("Equal", 34, 42))
sketch1.addConstraint(Sketcher.Constraint("Equal", 31, 45))
sketch1.addConstraint(Sketcher.Constraint("Equal", 52, 50))
sketch1.addConstraint(Sketcher.Constraint("Equal", 69, 62))
sketch1.addConstraint(Sketcher.Constraint("Equal", 60, 71))
sketch1.addConstraint(Sketcher.Constraint("Equal", 11, 13))
sketch1.addConstraint(Sketcher.Constraint("Radius", 25, 25.0))
sketch1.addConstraint(Sketcher.Constraint("Diameter", 74, 6.8))
sketch1.addConstraint(Sketcher.Constraint("Radius", 1, 2.5))
sketch1.addConstraint(Sketcher.Constraint("Radius", 4, 0.2))
sketch1.addConstraint(Sketcher.Constraint("Radius", 7, 0.3))
sketch1.addConstraint(Sketcher.Constraint("DistanceX", 2, 1, 2, 2, 7.4))
sketch1.addConstraint(Sketcher.Constraint("DistanceX", 5, 1, 5, 2, 0.8))
sketch1.addConstraint(Sketcher.Constraint("DistanceX", 26, 2, 26, 1, 2.5))
sketch1.addConstraint(Sketcher.Constraint("DistanceX", 48, 2, 48, 1, 2.7))
sketch1.addConstraint(Sketcher.Constraint("DistanceX", 8, 2, 8, 1, 3.55))
sketch1.addConstraint(Sketcher.Constraint("DistanceX", 60, 2, 60, 1, 1.95))
sketch1.addConstraint(Sketcher.Constraint("DistanceX", 12, 1, 12, 2, 8.48873))
sketch1.addConstraint(Sketcher.Constraint("Distance", 63, 6.29325))
sketch1.addConstraint(Sketcher.Constraint("DistanceX", 36, 1, 36, 2, 2.694365))
sketch1.addConstraint(Sketcher.Constraint("DistanceX", 1, 3, -1, 1, 27.45745))
sketch1.addConstraint(Sketcher.Constraint("DistanceY", 1, 3, -1, 1, 14.43033))
sketch1.addConstraint(Sketcher.Constraint("DistanceX", 49, 3, -1, 1, 27.93245))
sketch1.addConstraint(Sketcher.Constraint("DistanceY", 49, 3, -1, 1, 14.90533))
sketch1.addConstraint(Sketcher.Constraint("DistanceX", 74, 3, -1, 1, 14.95745))
sketch1.addConstraint(Sketcher.Constraint("DistanceY", 74, 3, -1, 1, 1.93033))
pad1 = doc.addObject("PartDesign::Pad", "Pad")
body.addObject(pad1)
pad1.Profile = sketch1
pad1.Length = 1000

doc.recompute()
